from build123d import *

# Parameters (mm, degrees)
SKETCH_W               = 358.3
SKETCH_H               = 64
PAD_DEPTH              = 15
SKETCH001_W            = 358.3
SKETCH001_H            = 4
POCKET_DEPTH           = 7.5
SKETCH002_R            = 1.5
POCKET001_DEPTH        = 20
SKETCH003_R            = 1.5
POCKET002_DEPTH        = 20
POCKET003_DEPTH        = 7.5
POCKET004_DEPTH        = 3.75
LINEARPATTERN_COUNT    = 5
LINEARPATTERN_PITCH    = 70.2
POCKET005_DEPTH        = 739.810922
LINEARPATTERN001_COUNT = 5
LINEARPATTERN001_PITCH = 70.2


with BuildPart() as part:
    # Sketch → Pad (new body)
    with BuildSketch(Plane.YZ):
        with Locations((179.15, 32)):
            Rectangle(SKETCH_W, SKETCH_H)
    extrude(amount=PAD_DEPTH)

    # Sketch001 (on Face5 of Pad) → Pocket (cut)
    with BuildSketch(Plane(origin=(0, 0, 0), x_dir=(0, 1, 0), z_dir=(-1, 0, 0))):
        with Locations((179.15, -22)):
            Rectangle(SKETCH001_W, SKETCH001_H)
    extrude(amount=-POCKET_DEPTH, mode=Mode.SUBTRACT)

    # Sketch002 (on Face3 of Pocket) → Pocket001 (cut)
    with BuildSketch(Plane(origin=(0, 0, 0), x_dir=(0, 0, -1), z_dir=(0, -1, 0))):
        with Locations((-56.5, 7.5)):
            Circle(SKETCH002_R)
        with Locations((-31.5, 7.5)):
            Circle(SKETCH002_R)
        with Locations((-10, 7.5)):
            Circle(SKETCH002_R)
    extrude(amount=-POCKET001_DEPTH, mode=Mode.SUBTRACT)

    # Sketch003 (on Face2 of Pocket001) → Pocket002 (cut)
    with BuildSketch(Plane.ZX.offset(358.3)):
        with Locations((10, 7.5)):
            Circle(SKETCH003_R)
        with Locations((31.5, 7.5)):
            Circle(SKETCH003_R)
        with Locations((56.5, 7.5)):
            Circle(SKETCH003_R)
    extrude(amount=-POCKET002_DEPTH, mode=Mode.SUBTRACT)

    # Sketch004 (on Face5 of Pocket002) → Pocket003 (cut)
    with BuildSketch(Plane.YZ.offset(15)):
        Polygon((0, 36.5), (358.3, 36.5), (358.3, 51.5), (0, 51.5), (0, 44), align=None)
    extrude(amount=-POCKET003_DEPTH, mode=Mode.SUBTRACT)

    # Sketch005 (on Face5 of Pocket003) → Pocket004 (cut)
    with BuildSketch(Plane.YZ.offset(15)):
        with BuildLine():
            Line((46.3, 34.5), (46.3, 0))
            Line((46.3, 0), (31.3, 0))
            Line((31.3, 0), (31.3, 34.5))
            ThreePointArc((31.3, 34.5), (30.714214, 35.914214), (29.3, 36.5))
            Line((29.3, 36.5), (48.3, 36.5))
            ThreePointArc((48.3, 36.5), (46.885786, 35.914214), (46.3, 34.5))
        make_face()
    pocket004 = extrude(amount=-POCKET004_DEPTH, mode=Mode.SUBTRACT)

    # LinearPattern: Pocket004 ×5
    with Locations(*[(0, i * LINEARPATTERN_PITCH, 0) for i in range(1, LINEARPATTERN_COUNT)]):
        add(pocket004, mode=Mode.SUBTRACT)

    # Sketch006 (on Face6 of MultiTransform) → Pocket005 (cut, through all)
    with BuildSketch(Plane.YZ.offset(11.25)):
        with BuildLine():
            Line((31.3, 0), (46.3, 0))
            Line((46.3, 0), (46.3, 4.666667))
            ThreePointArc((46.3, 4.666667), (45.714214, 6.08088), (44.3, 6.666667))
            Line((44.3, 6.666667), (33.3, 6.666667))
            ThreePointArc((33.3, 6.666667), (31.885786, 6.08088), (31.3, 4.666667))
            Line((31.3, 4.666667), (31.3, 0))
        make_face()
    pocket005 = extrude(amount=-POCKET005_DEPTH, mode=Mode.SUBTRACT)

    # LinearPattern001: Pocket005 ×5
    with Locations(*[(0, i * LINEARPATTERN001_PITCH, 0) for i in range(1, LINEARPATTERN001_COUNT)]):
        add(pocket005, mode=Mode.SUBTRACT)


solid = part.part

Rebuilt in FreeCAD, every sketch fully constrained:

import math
import FreeCAD as App
import Part
import Sketcher
from FreeCAD import Vector
Q = App.Units.Quantity


def add_polygon(sketch, points):
    """Adds a closed chain of lines whose ends are joined by coincident constraints."""
    first, n = sketch.GeometryCount, len(points)
    for a, b in zip(points, points[1:] + points[:1]):
        sketch.addGeometry(Part.LineSegment(App.Vector(*a, 0), App.Vector(*b, 0)), False)
    for i in range(n):
        sketch.addConstraint(Sketcher.Constraint("Coincident", first + i, 2, first + (i + 1) % n, 1))

doc = App.newDocument("Part")
body = doc.addObject("PartDesign::Body", "Body")

sketch1 = body.newObject("Sketcher::SketchObject", "Sketch")
sketch1.AttachmentSupport = (doc.getObject("YZ_Plane"), [""])
sketch1.MapMode = "FlatFace"
add_polygon(sketch1, [(0, 64), (0, 0), (358, 0), (358, 64)])
sketch1.addConstraint(Sketcher.Constraint("Vertical", 0))
sketch1.addConstraint(Sketcher.Constraint("Horizontal", 1))
sketch1.addConstraint(Sketcher.Constraint("Vertical", 2))
sketch1.addConstraint(Sketcher.Constraint("Horizontal", 3))
sketch1.addConstraint(Sketcher.Constraint("Coincident", 0, 2, -1, 1))
sketch1.addConstraint(Sketcher.Constraint("DistanceY", 0, 2, 0, 1, Q("64 mm")))
sketch1.addConstraint(Sketcher.Constraint("DistanceX", 1, 1, 1, 2, Q("358.3 mm")))
pad1 = body.newObject("PartDesign::Pad", "Pad")
pad1.Profile = sketch1
pad1.Length = 15

sketch2 = body.newObject("Sketcher::SketchObject", "Sketch001")
sketch2.AttachmentSupport = (doc.getObject("YZ_Plane"), [""])
sketch2.MapMode = "FlatFace"
add_polygon(sketch2, [(0, 20), (0, 24), (358.3, 24), (358.3, 20)])
sketch2.addConstraint(Sketcher.Constraint("Vertical", 0))
sketch2.addConstraint(Sketcher.Constraint("Horizontal", 1))
sketch2.addConstraint(Sketcher.Constraint("Vertical", 2))
sketch2.addConstraint(Sketcher.Constraint("Horizontal", 3))
sketch2.addConstraint(Sketcher.Constraint("PointOnObject", 0, 2, -2))
sketch2.addConstraint(Sketcher.Constraint("DistanceY", 0, 1, 0, 2, Q("4 mm")))
sketch2.addConstraint(Sketcher.Constraint("DistanceX", 1, 1, 1, 2, Q("358.3 mm")))
sketch2.addConstraint(Sketcher.Constraint("DistanceY", -1, 1, 0, 2, Q("24 mm")))
pocket1 = body.newObject("PartDesign::Pocket", "Pocket")
pocket1.Profile = sketch2
pocket1.Length = 7.5
pocket1.Reversed = True

sketch3 = body.newObject("Sketcher::SketchObject", "Sketch002")
sketch3.AttachmentSupport = (doc.getObject("XZ_Plane"), [""])
sketch3.MapMode = "FlatFace"
sketch3.addGeometry(Part.Circle(Vector(7.5, 56.5, 0), Vector(0, 0, 1), 1.5), False)
sketch3.addGeometry(Part.Circle(Vector(7.5, 31.5, 0), Vector(0, 0, 1), 1.5), False)
sketch3.addGeometry(Part.Circle(Vector(7.5, 10, 0), Vector(0, 0, 1), 1.5), False)
sketch3.addConstraint(Sketcher.Constraint("Equal", 0, 1))
sketch3.addConstraint(Sketcher.Constraint("Equal", 1, 2))
sketch3.addConstraint(Sketcher.Constraint("Vertical", 0, 3, 1, 3))
sketch3.addConstraint(Sketcher.Constraint("Vertical", 1, 3, 2, 3))
sketch3.addConstraint(Sketcher.Constraint("Diameter", 0, Q("3 mm")))
sketch3.addConstraint(Sketcher.Constraint("DistanceY", -1, 1, 2, 3, Q("10 mm")))
sketch3.addConstraint(Sketcher.Constraint("DistanceY", 1, 3, 0, 3, Q("25 mm")))
sketch3.addConstraint(Sketcher.Constraint("DistanceX", -1, 1, 0, 3, Q("7.5 mm")))
sketch3.addConstraint(Sketcher.Constraint("DistanceY", -1, 1, 0, 3, Q("56.5 mm")))
pocket2 = body.newObject("PartDesign::Pocket", "Pocket001")
pocket2.Profile = sketch3
pocket2.Length = 20

sketch4 = body.newObject("Sketcher::SketchObject", "Sketch003")
sketch4.AttachmentSupport = (doc.getObject("XZ_Plane"), [""])
sketch4.MapMode = "FlatFace"
sketch4.AttachmentOffset = App.Placement(Vector(0, 0, -358.3), App.Rotation())
sketch4.addGeometry(Part.Circle(Vector(7.5, 10, 0), Vector(0, 0, 1), 1.5), False)
sketch4.addGeometry(Part.Circle(Vector(7.5, 31.5, 0), Vector(0, 0, 1), 1.5), False)
sketch4.addGeometry(Part.Circle(Vector(7.5, 56.5, 0), Vector(0, 0, 1), 1.5), False)
sketch4.addConstraint(Sketcher.Constraint("Equal", 0, 1))
sketch4.addConstraint(Sketcher.Constraint("Equal", 1, 2))
sketch4.addConstraint(Sketcher.Constraint("Vertical", 0, 3, 1, 3))
sketch4.addConstraint(Sketcher.Constraint("Vertical", 1, 3, 2, 3))
sketch4.addConstraint(Sketcher.Constraint("Diameter", 0, Q("3 mm")))
sketch4.addConstraint(Sketcher.Constraint("DistanceY", -1, 1, 0, 3, Q("10 mm")))
sketch4.addConstraint(Sketcher.Constraint("DistanceY", 1, 3, 2, 3, Q("25 mm")))
sketch4.addConstraint(Sketcher.Constraint("DistanceX", -1, 1, 0, 3, Q("7.5 mm")))
sketch4.addConstraint(Sketcher.Constraint("DistanceY", -1, 1, 1, 3, Q("31.5 mm")))
pocket3 = body.newObject("PartDesign::Pocket", "Pocket002")
pocket3.Profile = sketch4
pocket3.Length = 20
pocket3.Reversed = True

sketch5 = body.newObject("Sketcher::SketchObject", "Sketch004")
sketch5.AttachmentSupport = (doc.getObject("YZ_Plane"), [""])
sketch5.MapMode = "FlatFace"
sketch5.AttachmentOffset = App.Placement(Vector(0, 0, 15), App.Rotation())
add_polygon(sketch5, [(0, 36), (358, 36), (358, 52), (0, 52)])
sketch5.addConstraint(Sketcher.Constraint("Horizontal", 0))
sketch5.addConstraint(Sketcher.Constraint("Vertical", 1))
sketch5.addConstraint(Sketcher.Constraint("Horizontal", 2))
sketch5.addConstraint(Sketcher.Constraint("Vertical", 3))
sketch5.addConstraint(Sketcher.Constraint("PointOnObject", 2, 2, -2))
sketch5.addConstraint(Sketcher.Constraint("DistanceY", 1, 1, 1, 2, Q("15 mm")))
sketch5.addConstraint(Sketcher.Constraint("DistanceX", 0, 1, 0, 2, Q("358.3 mm")))
sketch5.addConstraint(Sketcher.Constraint("DistanceY", -1, 1, 0, 2, Q("36.5 mm")))
pocket4 = body.newObject("PartDesign::Pocket", "Pocket003")
pocket4.Profile = sketch5
pocket4.Length = 7.5

sketch6 = body.newObject("Sketcher::SketchObject", "Sketch005")
sketch6.AttachmentSupport = (doc.getObject("YZ_Plane"), [""])
sketch6.MapMode = "FlatFace"
sketch6.AttachmentOffset = App.Placement(Vector(0, 0, 15), App.Rotation())
sketch6.addGeometry(Part.LineSegment(Vector(46.3, 0, 0), Vector(46.3, 34.5, 0)), False)
sketch6.addGeometry(Part.ArcOfCircle(Part.Circle(Vector(48.3, 34.5, 0), Vector(0, 0, 1), 2), math.radians(90), math.radians(180)), False)
sketch6.addGeometry(Part.LineSegment(Vector(48.3, 36.5, 0), Vector(29.3, 36.5, 0)), False)
sketch6.addGeometry(Part.ArcOfCircle(Part.Circle(Vector(29.3, 34.5, 0), Vector(0, 0, 1), 2), math.radians(0), math.radians(90)), False)
sketch6.addGeometry(Part.LineSegment(Vector(31.3, 34.5, 0), Vector(31.3, 0, 0)), False)
sketch6.addGeometry(Part.LineSegment(Vector(31.3, 0, 0), Vector(46.3, 0, 0)), False)
sketch6.addConstraint(Sketcher.Constraint("Tangent", 0, 2, 1, 2))
sketch6.addConstraint(Sketcher.Constraint("Tangent", 1, 1, 2, 1))
sketch6.addConstraint(Sketcher.Constraint("Tangent", 2, 2, 3, 2))
sketch6.addConstraint(Sketcher.Constraint("Tangent", 3, 1, 4, 1))
sketch6.addConstraint(Sketcher.Constraint("Coincident", 4, 2, 5, 1))
sketch6.addConstraint(Sketcher.Constraint("Coincident", 5, 2, 0, 1))
sketch6.addConstraint(Sketcher.Constraint("Vertical", 0))
sketch6.addConstraint(Sketcher.Constraint("Horizontal", 2))
sketch6.addConstraint(Sketcher.Constraint("Vertical", 4))
sketch6.addConstraint(Sketcher.Constraint("Horizontal", 5))
sketch6.addConstraint(Sketcher.Constraint("Equal", 1, 3))
sketch6.addConstraint(Sketcher.Constraint("PointOnObject", 4, 2, -1))
sketch6.addConstraint(Sketcher.Constraint("Radius", 1, Q("1.999999 mm")))
sketch6.addConstraint(Sketcher.Constraint("DistanceX", 2, 2, 2, 1, Q("19 mm")))
sketch6.addConstraint(Sketcher.Constraint("DistanceY", 0, 1, 0, 2, Q("34.5 mm")))
sketch6.addConstraint(Sketcher.Constraint("DistanceX", -1, 1, 1, 3, Q("48.299999 mm")))
pocket5 = body.newObject("PartDesign::Pocket", "Pocket004")
pocket5.Profile = sketch6
pocket5.Length = 3.75
doc.recompute()

linearpattern = body.newObject("PartDesign::LinearPattern", "LinearPattern")
linearpattern.Originals = [pocket5]
linearpattern.Direction = (doc.getObject("Y_Axis"), [""])
linearpattern.Mode = "offset"
linearpattern.Offset = 70.2
linearpattern.Occurrences = 5
body.Tip = linearpattern

sketch7 = body.newObject("Sketcher::SketchObject", "Sketch006")
sketch7.AttachmentSupport = (doc.getObject("YZ_Plane"), [""])
sketch7.MapMode = "FlatFace"
sketch7.AttachmentOffset = App.Placement(Vector(0, 0, 11.25), App.Rotation())
sketch7.addGeometry(Part.LineSegment(Vector(31.3, 0, 0), Vector(46.3, 0, 0)), False)
sketch7.addGeometry(Part.LineSegment(Vector(46.3, 0, 0), Vector(46.3, 4.7, 0)), False)
sketch7.addGeometry(Part.ArcOfCircle(Part.Circle(Vector(44.3, 4.7, 0), Vector(0, 0, 1), 2), math.radians(0), math.radians(90)), False)
sketch7.addGeometry(Part.LineSegment(Vector(44.3, 6.7, 0), Vector(33.3, 6.7, 0)), False)
sketch7.addGeometry(Part.ArcOfCircle(Part.Circle(Vector(33.3, 4.7, 0), Vector(0, 0, 1), 2), math.radians(90), math.radians(180)), False)
sketch7.addGeometry(Part.LineSegment(Vector(31.3, 4.7, 0), Vector(31.3, 0, 0)), False)
sketch7.addConstraint(Sketcher.Constraint("Coincident", 0, 2, 1, 1))
sketch7.addConstraint(Sketcher.Constraint("Tangent", 1, 2, 2, 1))
sketch7.addConstraint(Sketcher.Constraint("Tangent", 2, 2, 3, 1))
sketch7.addConstraint(Sketcher.Constraint("Tangent", 3, 2, 4, 1))
sketch7.addConstraint(Sketcher.Constraint("Tangent", 4, 2, 5, 1))
sketch7.addConstraint(Sketcher.Constraint("Coincident", 5, 2, 0, 1))
sketch7.addConstraint(Sketcher.Constraint("Horizontal", 0))
sketch7.addConstraint(Sketcher.Constraint("Vertical", 1))
sketch7.addConstraint(Sketcher.Constraint("Horizontal", 3))
sketch7.addConstraint(Sketcher.Constraint("Vertical", 5))
sketch7.addConstraint(Sketcher.Constraint("Equal", 2, 4))
sketch7.addConstraint(Sketcher.Constraint("PointOnObject", 0, 2, -1))
sketch7.addConstraint(Sketcher.Constraint("Radius", 2, Q("2 mm")))
sketch7.addConstraint(Sketcher.Constraint("DistanceX", 0, 1, 0, 2, Q("15 mm")))
sketch7.addConstraint(Sketcher.Constraint("DistanceX", -1, 1, 2, 3, Q("44.3 mm")))
sketch7.addConstraint(Sketcher.Constraint("DistanceY", 1, 1, 1, 2, Q("4.666667 mm")))
pocket6 = body.newObject("PartDesign::Pocket", "Pocket005")
pocket6.Profile = sketch7
pocket6.Type = "ThroughAll"
doc.recompute()

linearpattern2 = body.newObject("PartDesign::LinearPattern", "LinearPattern001")
linearpattern2.Originals = [pocket6]
linearpattern2.Direction = (doc.getObject("Y_Axis"), [""])
linearpattern2.Mode = "offset"
linearpattern2.Offset = 70.2
linearpattern2.Occurrences = 5
body.Tip = linearpattern2

doc.recompute()
